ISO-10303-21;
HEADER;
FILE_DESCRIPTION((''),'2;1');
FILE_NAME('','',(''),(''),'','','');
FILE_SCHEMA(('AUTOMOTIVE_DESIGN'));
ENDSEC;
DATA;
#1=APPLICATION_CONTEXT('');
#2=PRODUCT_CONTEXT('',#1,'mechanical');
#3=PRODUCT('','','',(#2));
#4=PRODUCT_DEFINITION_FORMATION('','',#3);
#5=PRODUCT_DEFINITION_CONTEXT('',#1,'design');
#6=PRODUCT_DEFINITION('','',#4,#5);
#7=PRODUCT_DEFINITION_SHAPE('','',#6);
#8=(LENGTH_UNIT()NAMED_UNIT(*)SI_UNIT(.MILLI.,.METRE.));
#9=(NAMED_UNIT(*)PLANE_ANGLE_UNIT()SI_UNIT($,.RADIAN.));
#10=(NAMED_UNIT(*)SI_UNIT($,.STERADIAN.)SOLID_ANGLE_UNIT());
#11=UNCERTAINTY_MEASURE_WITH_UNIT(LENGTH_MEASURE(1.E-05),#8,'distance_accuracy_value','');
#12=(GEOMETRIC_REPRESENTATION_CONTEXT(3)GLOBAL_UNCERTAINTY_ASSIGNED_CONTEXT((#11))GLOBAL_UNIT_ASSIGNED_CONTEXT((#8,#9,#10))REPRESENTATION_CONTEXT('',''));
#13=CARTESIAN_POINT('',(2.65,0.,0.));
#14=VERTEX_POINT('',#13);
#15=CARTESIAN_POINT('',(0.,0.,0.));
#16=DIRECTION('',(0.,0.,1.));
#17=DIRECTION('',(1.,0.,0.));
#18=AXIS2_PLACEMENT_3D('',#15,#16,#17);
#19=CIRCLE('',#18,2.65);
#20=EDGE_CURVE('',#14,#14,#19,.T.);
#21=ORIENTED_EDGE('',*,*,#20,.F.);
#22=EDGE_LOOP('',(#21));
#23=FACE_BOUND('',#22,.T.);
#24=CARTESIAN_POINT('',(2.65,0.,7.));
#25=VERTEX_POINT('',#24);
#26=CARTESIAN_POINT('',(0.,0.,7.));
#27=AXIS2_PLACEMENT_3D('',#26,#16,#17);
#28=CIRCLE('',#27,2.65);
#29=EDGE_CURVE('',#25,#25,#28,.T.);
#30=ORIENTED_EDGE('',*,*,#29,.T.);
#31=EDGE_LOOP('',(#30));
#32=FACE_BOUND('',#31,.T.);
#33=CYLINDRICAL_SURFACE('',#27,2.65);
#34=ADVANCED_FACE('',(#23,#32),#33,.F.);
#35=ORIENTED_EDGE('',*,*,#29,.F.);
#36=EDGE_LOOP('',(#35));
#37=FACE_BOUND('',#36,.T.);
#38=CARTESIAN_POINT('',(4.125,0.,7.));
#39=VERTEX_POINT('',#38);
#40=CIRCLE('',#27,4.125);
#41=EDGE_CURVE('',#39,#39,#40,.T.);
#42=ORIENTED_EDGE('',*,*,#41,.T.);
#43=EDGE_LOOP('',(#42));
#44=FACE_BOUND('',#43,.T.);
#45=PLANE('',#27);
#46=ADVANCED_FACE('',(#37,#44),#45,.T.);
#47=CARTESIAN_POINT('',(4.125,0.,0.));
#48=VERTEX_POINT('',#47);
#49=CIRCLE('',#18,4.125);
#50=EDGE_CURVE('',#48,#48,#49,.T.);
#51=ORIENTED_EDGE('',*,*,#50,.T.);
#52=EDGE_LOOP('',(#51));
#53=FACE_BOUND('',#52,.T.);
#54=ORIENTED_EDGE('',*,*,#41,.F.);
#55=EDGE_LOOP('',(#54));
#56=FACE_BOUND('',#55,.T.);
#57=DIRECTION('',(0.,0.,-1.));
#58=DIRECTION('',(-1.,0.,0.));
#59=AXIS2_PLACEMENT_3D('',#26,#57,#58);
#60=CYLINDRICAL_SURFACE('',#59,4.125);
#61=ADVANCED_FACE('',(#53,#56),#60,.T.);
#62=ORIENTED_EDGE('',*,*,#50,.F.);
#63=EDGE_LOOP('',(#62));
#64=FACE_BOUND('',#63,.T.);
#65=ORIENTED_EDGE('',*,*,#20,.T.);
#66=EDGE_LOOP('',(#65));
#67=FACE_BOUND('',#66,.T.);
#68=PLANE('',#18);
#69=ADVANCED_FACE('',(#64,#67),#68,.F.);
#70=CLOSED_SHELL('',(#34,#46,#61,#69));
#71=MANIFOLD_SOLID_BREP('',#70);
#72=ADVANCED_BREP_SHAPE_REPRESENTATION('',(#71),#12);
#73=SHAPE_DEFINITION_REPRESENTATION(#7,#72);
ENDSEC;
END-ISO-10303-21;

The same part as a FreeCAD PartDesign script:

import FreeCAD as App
import Part
import Sketcher
Q = App.Units.Quantity

doc = App.newDocument("Part")
body = doc.addObject("PartDesign::Body", "Body")

# Sketch on XY plane
sketch1 = body.newObject("Sketcher::SketchObject", "Sketch")
sketch1.AttachmentSupport = (doc.getObject("XY_Plane"), [""])
sketch1.MapMode = "FlatFace"
sketch1.addGeometry(Part.Circle(App.Vector(0, 0, 0), App.Vector(0, 0, 1), 4.1), False)
sketch1.addConstraint(Sketcher.Constraint("Coincident", 0, 3, -1, 1))
sketch1.addConstraint(Sketcher.Constraint("Diameter", 0, Q("8.25 mm")))
pad1 = body.newObject("PartDesign::Pad", "Pad")
pad1.Profile = sketch1
pad1.Length = 7

# Sketch on XY plane
sketch2 = body.newObject("Sketcher::SketchObject", "Sketch001")
sketch2.AttachmentSupport = (doc.getObject("XY_Plane"), [""])
sketch2.MapMode = "FlatFace"
sketch2.AttachmentOffset = App.Placement(App.Vector(0, 0, 7), App.Rotation())
sketch2.addGeometry(Part.Circle(App.Vector(0, 0, 0), App.Vector(0, 0, 1), 2.6), False)
sketch2.addConstraint(Sketcher.Constraint("Coincident", 0, 3, -1, 1))
sketch2.addConstraint(Sketcher.Constraint("Diameter", 0, Q("5.3 mm")))
doc.recompute()
hole = body.newObject("PartDesign::Hole", "Hole")
hole.Profile = sketch2
hole.ThreadType = "None"
hole.Diameter = 5.3
hole.DepthType = "ThroughAll"

doc.recompute()
